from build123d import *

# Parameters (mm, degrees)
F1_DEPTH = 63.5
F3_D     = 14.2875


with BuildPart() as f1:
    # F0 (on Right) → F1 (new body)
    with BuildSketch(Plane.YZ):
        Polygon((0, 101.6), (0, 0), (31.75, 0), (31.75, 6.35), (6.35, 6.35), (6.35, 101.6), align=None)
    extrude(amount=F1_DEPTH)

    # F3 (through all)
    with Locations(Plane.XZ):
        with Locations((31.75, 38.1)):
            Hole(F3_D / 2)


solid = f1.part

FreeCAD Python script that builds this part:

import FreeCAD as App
import Part
import Sketcher
Q = App.Units.Quantity

doc = App.newDocument("Part")
params = doc.addObject("Spreadsheet::Sheet", "Params")
for row, (alias, value) in enumerate([
    ("sketch1_width", "1 in"),
    ("sketch1_height", "4 in"),
    ("sketch1_width2", "1.25 in"),
    ("pad1_length", "2.5 in"),
    ("sketch2_diameter", "0.5625 in"),
    ("hole_diameter", "0.5625 in"),
], start=1):
    params.set(f"A{row}", alias)
    params.set(f"B{row}", "=" + value)
    params.setAlias(f"B{row}", alias)

body = doc.addObject("PartDesign::Body", "Body")

# Sketch on YZ plane
sketch1 = doc.addObject("Sketcher::SketchObject", "Sketch")
body.addObject(sketch1)
sketch1.AttachmentSupport = (doc.YZ_Plane, [""])
sketch1.MapMode = "FlatFace"
sketch1.addGeometry(Part.LineSegment(App.Vector(0, 102, 0), App.Vector(0, 0, 0)), False)
sketch1.addGeometry(Part.LineSegment(App.Vector(0, 0, 0), App.Vector(32, 0, 0)), False)
sketch1.addGeometry(Part.LineSegment(App.Vector(32, 0, 0), App.Vector(32, 6, 0)), False)
sketch1.addGeometry(Part.LineSegment(App.Vector(32, 6, 0), App.Vector(6, 6, 0)), False)
sketch1.addGeometry(Part.LineSegment(App.Vector(6, 6, 0), App.Vector(6, 102, 0)), False)
sketch1.addGeometry(Part.LineSegment(App.Vector(6, 102, 0), App.Vector(0, 102, 0)), False)
sketch1.addConstraint(Sketcher.Constraint("Coincident", 0, 2, 1, 1))
sketch1.addConstraint(Sketcher.Constraint("Coincident", 1, 2, 2, 1))
sketch1.addConstraint(Sketcher.Constraint("Coincident", 2, 2, 3, 1))
sketch1.addConstraint(Sketcher.Constraint("Coincident", 3, 2, 4, 1))
sketch1.addConstraint(Sketcher.Constraint("Coincident", 4, 2, 5, 1))
sketch1.addConstraint(Sketcher.Constraint("Coincident", 5, 2, 0, 1))
sketch1.addConstraint(Sketcher.Constraint("Vertical", 0))
sketch1.addConstraint(Sketcher.Constraint("Horizontal", 1))
sketch1.addConstraint(Sketcher.Constraint("Vertical", 2))
sketch1.addConstraint(Sketcher.Constraint("Horizontal", 3))
sketch1.addConstraint(Sketcher.Constraint("Vertical", 4))
sketch1.addConstraint(Sketcher.Constraint("Horizontal", 5))
sketch1.addConstraint(Sketcher.Constraint("Coincident", 0, 2, -1, 1))
sketch1.addConstraint(Sketcher.Constraint("Equal", 5, 2))
sketch1.addConstraint(Sketcher.Constraint("DistanceX", 3, 2, 3, 1, Q("1 in")))
sketch1.addConstraint(Sketcher.Constraint("DistanceY", 0, 2, 0, 1, Q("4 in")))
sketch1.addConstraint(Sketcher.Constraint("DistanceX", 1, 1, 1, 2, Q("1.25 in")))
sketch1.setExpression("Constraints[14]", "Params.sketch1_width")
sketch1.setExpression("Constraints[15]", "Params.sketch1_height")
sketch1.setExpression("Constraints[16]", "Params.sketch1_width2")
pad1 = doc.addObject("PartDesign::Pad", "Pad")
body.addObject(pad1)
pad1.Profile = sketch1
pad1.setExpression("Length", "Params.pad1_length")

# Sketch on XZ plane
sketch2 = doc.addObject("Sketcher::SketchObject", "Sketch001")
body.addObject(sketch2)
sketch2.AttachmentSupport = (doc.XZ_Plane, [""])
sketch2.MapMode = "FlatFace"
sketch2.addGeometry(Part.Circle(App.Vector(32, 38, 0), App.Vector(0, 0, 1), 7), False)
sketch2.addConstraint(Sketcher.Constraint("Diameter", 0, Q("0.5625 in")))
sketch2.addConstraint(Sketcher.Constraint("DistanceY", -1, 1, 0, 3, Q("1.5 in")))
sketch2.addConstraint(Sketcher.Constraint("DistanceX", -1, 1, 0, 3, Q("1.25 in")))
sketch2.setExpression("Constraints[0]", "Params.sketch2_diameter")
doc.recompute()
hole = doc.addObject("PartDesign::Hole", "Hole")
body.addObject(hole)
hole.Profile = sketch2
hole.ThreadType = "None"
hole.setExpression("Diameter", "Params.hole_diameter")
hole.DepthType = "ThroughAll"

doc.recompute()
